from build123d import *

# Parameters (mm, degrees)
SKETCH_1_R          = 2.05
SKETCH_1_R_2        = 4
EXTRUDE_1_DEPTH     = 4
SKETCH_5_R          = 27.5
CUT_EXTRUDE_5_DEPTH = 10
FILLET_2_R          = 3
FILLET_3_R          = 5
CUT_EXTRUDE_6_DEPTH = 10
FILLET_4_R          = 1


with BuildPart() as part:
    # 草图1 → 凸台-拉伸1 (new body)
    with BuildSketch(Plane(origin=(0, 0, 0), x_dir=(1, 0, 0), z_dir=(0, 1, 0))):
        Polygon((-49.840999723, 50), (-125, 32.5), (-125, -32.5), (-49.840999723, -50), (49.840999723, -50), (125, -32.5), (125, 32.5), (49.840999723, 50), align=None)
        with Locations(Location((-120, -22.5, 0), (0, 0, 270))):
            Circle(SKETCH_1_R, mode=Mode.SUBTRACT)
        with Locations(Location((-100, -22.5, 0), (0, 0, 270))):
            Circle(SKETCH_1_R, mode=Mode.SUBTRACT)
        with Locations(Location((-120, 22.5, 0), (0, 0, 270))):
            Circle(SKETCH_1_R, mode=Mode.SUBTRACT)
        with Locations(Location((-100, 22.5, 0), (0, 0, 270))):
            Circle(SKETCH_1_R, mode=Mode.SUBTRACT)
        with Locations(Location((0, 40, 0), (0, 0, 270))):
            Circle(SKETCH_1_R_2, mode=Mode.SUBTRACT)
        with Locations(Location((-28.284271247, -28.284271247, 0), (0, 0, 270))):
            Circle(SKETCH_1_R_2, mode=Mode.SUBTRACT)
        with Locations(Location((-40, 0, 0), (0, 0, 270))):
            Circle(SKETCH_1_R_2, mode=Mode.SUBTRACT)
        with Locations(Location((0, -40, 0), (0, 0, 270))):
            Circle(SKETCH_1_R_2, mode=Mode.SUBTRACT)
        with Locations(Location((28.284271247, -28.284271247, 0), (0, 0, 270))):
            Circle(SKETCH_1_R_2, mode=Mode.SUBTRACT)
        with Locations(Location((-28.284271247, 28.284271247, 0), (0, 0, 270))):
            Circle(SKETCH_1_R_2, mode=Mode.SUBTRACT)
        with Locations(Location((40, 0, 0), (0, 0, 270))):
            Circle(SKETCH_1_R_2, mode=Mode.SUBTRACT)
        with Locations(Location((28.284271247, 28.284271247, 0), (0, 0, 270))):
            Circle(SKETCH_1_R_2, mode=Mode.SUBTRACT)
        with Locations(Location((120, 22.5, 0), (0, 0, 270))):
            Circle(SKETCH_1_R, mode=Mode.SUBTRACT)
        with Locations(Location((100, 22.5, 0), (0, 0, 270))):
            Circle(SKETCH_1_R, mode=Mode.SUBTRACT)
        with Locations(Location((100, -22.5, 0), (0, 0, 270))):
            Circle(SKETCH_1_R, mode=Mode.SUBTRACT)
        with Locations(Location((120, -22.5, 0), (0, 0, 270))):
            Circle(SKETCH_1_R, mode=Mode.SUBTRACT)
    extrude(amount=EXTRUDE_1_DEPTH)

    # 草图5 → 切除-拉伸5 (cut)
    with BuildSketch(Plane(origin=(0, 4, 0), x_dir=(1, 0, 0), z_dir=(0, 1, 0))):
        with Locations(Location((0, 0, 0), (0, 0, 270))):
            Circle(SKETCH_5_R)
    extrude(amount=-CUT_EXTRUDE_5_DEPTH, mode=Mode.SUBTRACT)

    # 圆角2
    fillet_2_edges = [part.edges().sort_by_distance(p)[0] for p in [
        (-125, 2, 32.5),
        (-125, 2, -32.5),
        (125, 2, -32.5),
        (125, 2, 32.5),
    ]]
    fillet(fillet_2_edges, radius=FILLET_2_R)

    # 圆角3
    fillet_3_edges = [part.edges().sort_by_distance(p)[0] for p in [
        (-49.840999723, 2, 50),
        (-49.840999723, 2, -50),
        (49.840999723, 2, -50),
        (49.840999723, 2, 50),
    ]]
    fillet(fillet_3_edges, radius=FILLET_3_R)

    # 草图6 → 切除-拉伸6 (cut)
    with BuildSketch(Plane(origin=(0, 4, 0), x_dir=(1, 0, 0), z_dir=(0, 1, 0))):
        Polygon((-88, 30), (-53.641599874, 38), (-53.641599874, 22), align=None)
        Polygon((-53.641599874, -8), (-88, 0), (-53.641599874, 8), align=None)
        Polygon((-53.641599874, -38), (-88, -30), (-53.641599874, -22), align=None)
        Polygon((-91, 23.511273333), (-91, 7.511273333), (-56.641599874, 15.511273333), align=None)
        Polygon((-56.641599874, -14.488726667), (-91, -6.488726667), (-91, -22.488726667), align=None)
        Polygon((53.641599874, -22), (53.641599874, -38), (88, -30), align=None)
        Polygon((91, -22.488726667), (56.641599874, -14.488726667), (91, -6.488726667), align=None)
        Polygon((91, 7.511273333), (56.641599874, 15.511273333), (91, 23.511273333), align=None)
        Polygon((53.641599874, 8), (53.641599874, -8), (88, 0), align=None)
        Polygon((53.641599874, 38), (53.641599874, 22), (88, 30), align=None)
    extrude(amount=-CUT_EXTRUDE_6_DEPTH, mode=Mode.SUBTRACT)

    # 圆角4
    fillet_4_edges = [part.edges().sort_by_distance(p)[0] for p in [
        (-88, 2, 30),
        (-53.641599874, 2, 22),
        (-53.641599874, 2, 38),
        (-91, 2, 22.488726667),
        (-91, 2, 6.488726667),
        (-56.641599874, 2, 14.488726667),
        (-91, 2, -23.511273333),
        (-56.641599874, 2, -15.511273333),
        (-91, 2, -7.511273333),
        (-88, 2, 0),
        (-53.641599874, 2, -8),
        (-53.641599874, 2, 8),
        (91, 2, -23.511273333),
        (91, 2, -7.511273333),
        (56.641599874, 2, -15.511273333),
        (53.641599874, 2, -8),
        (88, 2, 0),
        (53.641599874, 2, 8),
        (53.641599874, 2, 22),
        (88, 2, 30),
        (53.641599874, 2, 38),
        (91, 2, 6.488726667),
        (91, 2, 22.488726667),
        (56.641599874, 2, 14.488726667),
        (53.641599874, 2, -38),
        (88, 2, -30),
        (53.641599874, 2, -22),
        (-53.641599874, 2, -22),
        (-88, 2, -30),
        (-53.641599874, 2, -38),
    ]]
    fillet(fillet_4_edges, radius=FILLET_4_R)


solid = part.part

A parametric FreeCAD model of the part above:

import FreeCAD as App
import Part
import Sketcher


def edges_at(feature, points):
    """Names of the edges that pass closest to the given points."""
    edges = feature.Shape.Edges
    near = lambda p: min(range(len(edges)), key=lambda i: edges[i].distToShape(Part.Vertex(*p))[0])
    return sorted({f"Edge{near(p) + 1}" for p in points})

doc = App.newDocument("Part")
params = doc.addObject("Spreadsheet::Sheet", "Params")
for row, (alias, value) in enumerate([
    ("sketch1_diameter", "8 mm"),
    ("sketch1_diameter2", "4.1 mm"),
    ("sketch1_height", "65 mm"),
    ("pad1_length", "4 mm"),
    ("sketch2_diameter", "55 mm"),
    ("pocket1_length", "10 mm"),
    ("fillet_radius", "3 mm"),
    ("fillet2_radius", "5 mm"),
    ("sketch3_height", "16 mm"),
    ("pocket2_length", "10 mm"),
    ("fillet3_radius", "1 mm"),
], start=1):
    params.set(f"A{row}", alias)
    params.set(f"B{row}", "=" + value)
    params.setAlias(f"B{row}", alias)

body = doc.addObject("PartDesign::Body", "Body")

sketch1 = body.newObject("Sketcher::SketchObject", "Sketch")
sketch1.AttachmentSupport = (doc.getObject("XZ_Plane"), [""])
sketch1.MapMode = "FlatFace"
sketch1.addGeometry([
    Part.LineSegment(App.Vector(-49.8, -50, 0), App.Vector(-125, -32.5, 0)),
    Part.LineSegment(App.Vector(-125, -32.5, 0), App.Vector(-125, 32.5, 0)),
    Part.LineSegment(App.Vector(-125, 32.5, 0), App.Vector(-49.8, 50, 0)),
    Part.LineSegment(App.Vector(-49.8, 50, 0), App.Vector(49.8, 50, 0)),
    Part.LineSegment(App.Vector(49.8, 50, 0), App.Vector(125, 32.5, 0)),
    Part.LineSegment(App.Vector(125, 32.5, 0), App.Vector(125, -32.5, 0)),
    Part.LineSegment(App.Vector(125, -32.5, 0), App.Vector(49.8, -50, 0)),
    Part.LineSegment(App.Vector(49.8, -50, 0), App.Vector(-49.8, -50, 0)),
    Part.Circle(App.Vector(-120, 22.5, 0), App.Vector(0, 0, 1), 2),
    Part.Circle(App.Vector(-100, 22.5, 0), App.Vector(0, 0, 1), 2),
    Part.Circle(App.Vector(-28.3, 28.3, 0), App.Vector(0, 0, 1), 4),
    Part.Circle(App.Vector(0, 40, 0), App.Vector(0, 0, 1), 4),
    Part.Circle(App.Vector(28.3, 28.3, 0), App.Vector(0, 0, 1), 4),
    Part.Circle(App.Vector(100, 22.5, 0), App.Vector(0, 0, 1), 2),
    Part.Circle(App.Vector(120, 22.5, 0), App.Vector(0, 0, 1), 2),
    Part.Circle(App.Vector(-40, 0, 0), App.Vector(0, 0, 1), 4),
    Part.Circle(App.Vector(-120, -22.5, 0), App.Vector(0, 0, 1), 2),
    Part.Circle(App.Vector(-100, -22.5, 0), App.Vector(0, 0, 1), 2),
    Part.Circle(App.Vector(-28.3, -28.3, 0), App.Vector(0, 0, 1), 4),
    Part.Circle(App.Vector(40, 0, 0), App.Vector(0, 0, 1), 4),
    Part.Circle(App.Vector(28.3, -28.3, 0), App.Vector(0, 0, 1), 4),
    Part.Circle(App.Vector(0, -40, 0), App.Vector(0, 0, 1), 4),
    Part.Circle(App.Vector(100, -22.5, 0), App.Vector(0, 0, 1), 2),
    Part.Circle(App.Vector(120, -22.5, 0), App.Vector(0, 0, 1), 2),
], False)
sketch1.addConstraint([
    Sketcher.Constraint("Coincident", 0, 2, 1, 1),
    Sketcher.Constraint("Coincident", 1, 2, 2, 1),
    Sketcher.Constraint("Coincident", 2, 2, 3, 1),
    Sketcher.Constraint("Coincident", 3, 2, 4, 1),
    Sketcher.Constraint("Coincident", 4, 2, 5, 1),
    Sketcher.Constraint("Coincident", 5, 2, 6, 1),
    Sketcher.Constraint("Coincident", 6, 2, 7, 1),
    Sketcher.Constraint("Coincident", 7, 2, 0, 1),
    Sketcher.Constraint("Vertical", 1),
    Sketcher.Constraint("Horizontal", 3),
    Sketcher.Constraint("Vertical", 5),
    Sketcher.Constraint("Horizontal", 7),
    Sketcher.Constraint("Equal", 8, 9),
    Sketcher.Constraint("Equal", 10, 11),
    Sketcher.Constraint("Equal", 11, 12),
    Sketcher.Constraint("Equal", 9, 13),
    Sketcher.Constraint("Equal", 13, 14),
    Sketcher.Constraint("Equal", 12, 15),
    Sketcher.Constraint("Equal", 14, 16),
    Sketcher.Constraint("Equal", 16, 17),
    Sketcher.Constraint("Equal", 15, 18),
    Sketcher.Constraint("Equal", 18, 19),
    Sketcher.Constraint("Equal", 19, 20),
    Sketcher.Constraint("Equal", 20, 21),
    Sketcher.Constraint("Equal", 17, 22),
    Sketcher.Constraint("Equal", 22, 23),
    Sketcher.Constraint("Symmetric", 14, 3, 16, 3, -1, 1),
    Sketcher.Constraint("Symmetric", 13, 3, 17, 3, -1, 1),
    Sketcher.Constraint("Symmetric", 12, 3, 18, 3, -1, 1),
    Sketcher.Constraint("Symmetric", 15, 3, 19, 3, -1, 1),
    Sketcher.Constraint("Symmetric", 10, 3, 20, 3, -1, 1),
    Sketcher.Constraint("Symmetric", 11, 3, 21, 3, -1, 1),
    Sketcher.Constraint("Symmetric", 9, 3, 22, 3, -1, 1),
    Sketcher.Constraint("Symmetric", 8, 3, 23, 3, -1, 1),
    Sketcher.Constraint("Symmetric", 0, 2, 4, 2, -1, 1),
    Sketcher.Constraint("Symmetric", 2, 2, 6, 2, -1, 1),
    Sketcher.Constraint("Symmetric", 10, 3, 12, 3, -2),
    Sketcher.Constraint("Symmetric", 9, 3, 13, 3, -2),
    Sketcher.Constraint("Symmetric", 8, 3, 14, 3, -2),
    Sketcher.Constraint("PointOnObject", 11, 3, -2),
    Sketcher.Constraint("PointOnObject", 15, 3, -1),
    Sketcher.Constraint("Parallel", 0, 4),
    Sketcher.Constraint("Parallel", 2, 6),
    Sketcher.Constraint("Horizontal", 8, 3, 9, 3),
    Sketcher.Constraint("Horizontal", 1, 2, 4, 2),
    Sketcher.Constraint("Vertical", 3, 2, 6, 2),
    Sketcher.Constraint("Diameter", 10, 8.0),
    Sketcher.Constraint("Diameter", 8, 4.1),
    Sketcher.Constraint("DistanceY", 1, 1, 1, 2, 65.0),
    Sketcher.Constraint("DistanceX", 8, 3, -1, 1, 120.0),
    Sketcher.Constraint("DistanceX", 9, 3, -1, 1, 100.0),
    Sketcher.Constraint("DistanceY", -1, 1, 11, 3, 40.0),
    Sketcher.Constraint("DistanceX", 15, 3, -1, 1, 40.0),
    Sketcher.Constraint("DistanceX", 0, 2, -1, 1, 125.0),
    Sketcher.Constraint("DistanceY", -1, 1, 2, 2, 50.0),
    Sketcher.Constraint("DistanceY", 16, 3, 8, 3, 45.0),
    Sketcher.Constraint("DistanceX", 3, 1, 3, 2, 99.681999),
    Sketcher.Constraint("DistanceX", 10, 3, -1, 1, 28.284271),
    Sketcher.Constraint("DistanceY", -1, 1, 10, 3, 28.284271),
])
sketch1.setExpression("Constraints[46]", "Params.sketch1_diameter")
sketch1.setExpression("Constraints[47]", "Params.sketch1_diameter2")
sketch1.setExpression("Constraints[48]", "Params.sketch1_height")
pad1 = body.newObject("PartDesign::Pad", "Pad")
pad1.Profile = sketch1
pad1.setExpression("Length", "Params.pad1_length")
pad1.Reversed = True

sketch2 = body.newObject("Sketcher::SketchObject", "Sketch001")
sketch2.AttachmentSupport = (doc.getObject("XZ_Plane"), [""])
sketch2.MapMode = "FlatFace"
sketch2.AttachmentOffset = App.Placement(App.Vector(0, 0, -4), App.Rotation())
sketch2.addGeometry(Part.Circle(App.Vector(0, 0, 0), App.Vector(0, 0, 1), 28), False)
sketch2.addConstraint([
    Sketcher.Constraint("Coincident", 0, 3, -1, 1),
    Sketcher.Constraint("Diameter", 0, 55.0),
])
sketch2.setExpression("Constraints[1]", "Params.sketch2_diameter")
pocket1 = body.newObject("PartDesign::Pocket", "Pocket")
pocket1.Profile = sketch2
pocket1.setExpression("Length", "Params.pocket1_length")
pocket1.Reversed = True
doc.recompute()

fillet = body.newObject("PartDesign::Fillet", "Fillet")
fillet.Base = (pocket1, edges_at(pocket1, [
    (-125, 2, 32.5),
    (-125, 2, -32.5),
    (125, 2, -32.5),
    (125, 2, 32.5),
]))
fillet.setExpression("Radius", "Params.fillet_radius")
doc.recompute()

fillet2 = body.newObject("PartDesign::Fillet", "Fillet001")
fillet2.Base = (fillet, edges_at(fillet, [
    (-49.841, 2, 50),
    (-49.841, 2, -50),
    (49.841, 2, -50),
    (49.841, 2, 50),
]))
fillet2.setExpression("Radius", "Params.fillet2_radius")

sketch3 = body.newObject("Sketcher::SketchObject", "Sketch002")
sketch3.AttachmentSupport = (doc.getObject("XZ_Plane"), [""])
sketch3.MapMode = "FlatFace"
sketch3.AttachmentOffset = App.Placement(App.Vector(0, 0, -4), App.Rotation())
sketch3.addGeometry([
    Part.LineSegment(App.Vector(-54, -38, 0), App.Vector(-88, -30, 0)),
    Part.LineSegment(App.Vector(-88, -30, 0), App.Vector(-54, -22, 0)),
    Part.LineSegment(App.Vector(-54, -22, 0), App.Vector(-54, -38, 0)),
    Part.LineSegment(App.Vector(-88, 0, 0), App.Vector(-54, 8, 0)),
    Part.LineSegment(App.Vector(-54, 8, 0), App.Vector(-54, -8, 0)),
    Part.LineSegment(App.Vector(-54, -8, 0), App.Vector(-88, 0, 0)),
    Part.LineSegment(App.Vector(-88, 30, 0), App.Vector(-54, 38, 0)),
    Part.LineSegment(App.Vector(-54, 38, 0), App.Vector(-54, 22, 0)),
    Part.LineSegment(App.Vector(-54, 22, 0), App.Vector(-88, 30, 0)),
    Part.LineSegment(App.Vector(-91, -24, 0), App.Vector(-91, -8, 0)),
    Part.LineSegment(App.Vector(-91, -8, 0), App.Vector(-57, -16, 0)),
    Part.LineSegment(App.Vector(-57, -16, 0), App.Vector(-91, -24, 0)),
    Part.LineSegment(App.Vector(-57, 14, 0), App.Vector(-91, 6, 0)),
    Part.LineSegment(App.Vector(-91, 6, 0), App.Vector(-91, 22, 0)),
    Part.LineSegment(App.Vector(-91, 22, 0), App.Vector(-57, 14, 0)),
    Part.LineSegment(App.Vector(54, 22, 0), App.Vector(54, 38, 0)),
    Part.LineSegment(App.Vector(54, 38, 0), App.Vector(88, 30, 0)),
    Part.LineSegment(App.Vector(88, 30, 0), App.Vector(54, 22, 0)),
    Part.LineSegment(App.Vector(57, 14, 0), App.Vector(91, 22, 0)),
    Part.LineSegment(App.Vector(91, 22, 0), App.Vector(91, 6, 0)),
    Part.LineSegment(App.Vector(91, 6, 0), App.Vector(57, 14, 0)),
    Part.LineSegment(App.Vector(57, -16, 0), App.Vector(91, -8, 0)),
    Part.LineSegment(App.Vector(91, -8, 0), App.Vector(91, -24, 0)),
    Part.LineSegment(App.Vector(91, -24, 0), App.Vector(57, -16, 0)),
    Part.LineSegment(App.Vector(54, -8, 0), App.Vector(54, 8, 0)),
    Part.LineSegment(App.Vector(54, 8, 0), App.Vector(88, 0, 0)),
    Part.LineSegment(App.Vector(88, 0, 0), App.Vector(54, -8, 0)),
    Part.LineSegment(App.Vector(54, -38, 0), App.Vector(54, -22, 0)),
    Part.LineSegment(App.Vector(54, -22, 0), App.Vector(88, -30, 0)),
    Part.LineSegment(App.Vector(88, -30, 0), App.Vector(54, -38, 0)),
], False)
sketch3.addConstraint([
    Sketcher.Constraint("Coincident", 0, 2, 1, 1),
    Sketcher.Constraint("Coincident", 1, 2, 2, 1),
    Sketcher.Constraint("Coincident", 2, 2, 0, 1),
    Sketcher.Constraint("Coincident", 3, 2, 4, 1),
    Sketcher.Constraint("Coincident", 4, 2, 5, 1),
    Sketcher.Constraint("Coincident", 5, 2, 3, 1),
    Sketcher.Constraint("Coincident", 6, 2, 7, 1),
    Sketcher.Constraint("Coincident", 7, 2, 8, 1),
    Sketcher.Constraint("Coincident", 8, 2, 6, 1),
    Sketcher.Constraint("Coincident", 9, 2, 10, 1),
    Sketcher.Constraint("Coincident", 10, 2, 11, 1),
    Sketcher.Constraint("Coincident", 11, 2, 9, 1),
    Sketcher.Constraint("Coincident", 12, 2, 13, 1),
    Sketcher.Constraint("Coincident", 13, 2, 14, 1),
    Sketcher.Constraint("Coincident", 14, 2, 12, 1),
    Sketcher.Constraint("Coincident", 15, 2, 16, 1),
    Sketcher.Constraint("Coincident", 16, 2, 17, 1),
    Sketcher.Constraint("Coincident", 17, 2, 15, 1),
    Sketcher.Constraint("Coincident", 18, 2, 19, 1),
    Sketcher.Constraint("Coincident", 19, 2, 20, 1),
    Sketcher.Constraint("Coincident", 20, 2, 18, 1),
    Sketcher.Constraint("Coincident", 21, 2, 22, 1),
    Sketcher.Constraint("Coincident", 22, 2, 23, 1),
    Sketcher.Constraint("Coincident", 23, 2, 21, 1),
    Sketcher.Constraint("Coincident", 24, 2, 25, 1),
    Sketcher.Constraint("Coincident", 25, 2, 26, 1),
    Sketcher.Constraint("Coincident", 26, 2, 24, 1),
    Sketcher.Constraint("Coincident", 27, 2, 28, 1),
    Sketcher.Constraint("Coincident", 28, 2, 29, 1),
    Sketcher.Constraint("Coincident", 29, 2, 27, 1),
    Sketcher.Constraint("Vertical", 2),
    Sketcher.Constraint("Vertical", 4),
    Sketcher.Constraint("Vertical", 7),
    Sketcher.Constraint("Vertical", 9),
    Sketcher.Constraint("Vertical", 13),
    Sketcher.Constraint("Vertical", 15),
    Sketcher.Constraint("Vertical", 19),
    Sketcher.Constraint("Vertical", 22),
    Sketcher.Constraint("Vertical", 24),
    Sketcher.Constraint("Vertical", 27),
    Sketcher.Constraint("Symmetric", 2, 2, 15, 2, -1, 1),
    Sketcher.Constraint("Symmetric", 0, 2, 16, 2, -1, 1),
    Sketcher.Constraint("Symmetric", 4, 2, 24, 2, -1, 1),
    Sketcher.Constraint("Symmetric", 5, 2, 25, 2, -1, 1),
    Sketcher.Constraint("Symmetric", 7, 2, 27, 2, -1, 1),
    Sketcher.Constraint("Symmetric", 8, 2, 28, 2, -1, 1),
    Sketcher.Constraint("Symmetric", 6, 2, 15, 2, -2),
    Sketcher.Constraint("Symmetric", 8, 2, 16, 2, -2),
    Sketcher.Constraint("Symmetric", 13, 2, 18, 2, -2),
    Sketcher.Constraint("Symmetric", 14, 2, 20, 2, -2),
    Sketcher.Constraint("Symmetric", 9, 2, 21, 2, -2),
    Sketcher.Constraint("Symmetric", 10, 2, 23, 2, -2),
    Sketcher.Constraint("PointOnObject", 5, 2, -1),
    Sketcher.Constraint("Parallel", 1, 3),
    Sketcher.Constraint("Parallel", 0, 5),
    Sketcher.Constraint("Parallel", 3, 6),
    Sketcher.Constraint("Parallel", 5, 8),
    Sketcher.Constraint("Parallel", 8, 10),
    Sketcher.Constraint("Parallel", 6, 11),
    Sketcher.Constraint("Parallel", 11, 12),
    Sketcher.Constraint("Parallel", 10, 14),
    Sketcher.Constraint("Parallel", 12, 17),
    Sketcher.Constraint("Parallel", 16, 20),
    Sketcher.Constraint("Parallel", 20, 23),
    Sketcher.Constraint("Parallel", 21, 26),
    Sketcher.Constraint("Parallel", 26, 29),
    Sketcher.Constraint("Vertical", 2, 2, 3, 2),
    Sketcher.Constraint("Vertical", 0, 2, 5, 2),
    Sketcher.Constraint("Vertical", 11, 2, 12, 2),
    Sketcher.Constraint("Vertical", 10, 2, 14, 2),
    Sketcher.Constraint("Equal", 7, 9),
    Sketcher.Constraint("DistanceY", 2, 2, 2, 1, 16.0),
    Sketcher.Constraint("DistanceX", 0, 2, -1, 1, 88.0),
    Sketcher.Constraint("DistanceY", 0, 2, -1, 1, 30.0),
    Sketcher.Constraint("DistanceX", 9, 2, -1, 1, 91.0),
    Sketcher.Constraint("DistanceY", 9, 2, 12, 2, 14.0),
    Sketcher.Constraint("DistanceX", 1, 2, -1, 1, 53.6416),
    Sketcher.Constraint("DistanceY", 9, 2, -1, 1, 7.511273),
])
sketch3.setExpression("Constraints[71]", "Params.sketch3_height")
pocket2 = body.newObject("PartDesign::Pocket", "Pocket001")
pocket2.Profile = sketch3
pocket2.setExpression("Length", "Params.pocket2_length")
pocket2.Reversed = True
doc.recompute()

fillet3 = body.newObject("PartDesign::Fillet", "Fillet002")
fillet3.Base = (pocket2, edges_at(pocket2, [
    (-88, 2, 30),
    (-53.642, 2, 22),
    (-53.642, 2, 38),
    (-91, 2, 22.489),
    (-91, 2, 6.489),
    (-56.642, 2, 14.489),
    (-91, 2, -23.511),
    (-56.642, 2, -15.511),
    (-91, 2, -7.511),
    (-88, 2, 0),
    (-53.642, 2, -8),
    (-53.642, 2, 8),
    (91, 2, -23.511),
    (91, 2, -7.511),
    (56.642, 2, -15.511),
    (53.642, 2, -8),
    (88, 2, 0),
    (53.642, 2, 8),
    (53.642, 2, 22),
    (88, 2, 30),
    (53.642, 2, 38),
    (91, 2, 6.489),
    (91, 2, 22.489),
    (56.642, 2, 14.489),
    (53.642, 2, -38),
    (88, 2, -30),
    (53.642, 2, -22),
    (-53.642, 2, -22),
    (-88, 2, -30),
    (-53.642, 2, -38),
]))
fillet3.setExpression("Radius", "Params.fillet3_radius")

doc.recompute()
